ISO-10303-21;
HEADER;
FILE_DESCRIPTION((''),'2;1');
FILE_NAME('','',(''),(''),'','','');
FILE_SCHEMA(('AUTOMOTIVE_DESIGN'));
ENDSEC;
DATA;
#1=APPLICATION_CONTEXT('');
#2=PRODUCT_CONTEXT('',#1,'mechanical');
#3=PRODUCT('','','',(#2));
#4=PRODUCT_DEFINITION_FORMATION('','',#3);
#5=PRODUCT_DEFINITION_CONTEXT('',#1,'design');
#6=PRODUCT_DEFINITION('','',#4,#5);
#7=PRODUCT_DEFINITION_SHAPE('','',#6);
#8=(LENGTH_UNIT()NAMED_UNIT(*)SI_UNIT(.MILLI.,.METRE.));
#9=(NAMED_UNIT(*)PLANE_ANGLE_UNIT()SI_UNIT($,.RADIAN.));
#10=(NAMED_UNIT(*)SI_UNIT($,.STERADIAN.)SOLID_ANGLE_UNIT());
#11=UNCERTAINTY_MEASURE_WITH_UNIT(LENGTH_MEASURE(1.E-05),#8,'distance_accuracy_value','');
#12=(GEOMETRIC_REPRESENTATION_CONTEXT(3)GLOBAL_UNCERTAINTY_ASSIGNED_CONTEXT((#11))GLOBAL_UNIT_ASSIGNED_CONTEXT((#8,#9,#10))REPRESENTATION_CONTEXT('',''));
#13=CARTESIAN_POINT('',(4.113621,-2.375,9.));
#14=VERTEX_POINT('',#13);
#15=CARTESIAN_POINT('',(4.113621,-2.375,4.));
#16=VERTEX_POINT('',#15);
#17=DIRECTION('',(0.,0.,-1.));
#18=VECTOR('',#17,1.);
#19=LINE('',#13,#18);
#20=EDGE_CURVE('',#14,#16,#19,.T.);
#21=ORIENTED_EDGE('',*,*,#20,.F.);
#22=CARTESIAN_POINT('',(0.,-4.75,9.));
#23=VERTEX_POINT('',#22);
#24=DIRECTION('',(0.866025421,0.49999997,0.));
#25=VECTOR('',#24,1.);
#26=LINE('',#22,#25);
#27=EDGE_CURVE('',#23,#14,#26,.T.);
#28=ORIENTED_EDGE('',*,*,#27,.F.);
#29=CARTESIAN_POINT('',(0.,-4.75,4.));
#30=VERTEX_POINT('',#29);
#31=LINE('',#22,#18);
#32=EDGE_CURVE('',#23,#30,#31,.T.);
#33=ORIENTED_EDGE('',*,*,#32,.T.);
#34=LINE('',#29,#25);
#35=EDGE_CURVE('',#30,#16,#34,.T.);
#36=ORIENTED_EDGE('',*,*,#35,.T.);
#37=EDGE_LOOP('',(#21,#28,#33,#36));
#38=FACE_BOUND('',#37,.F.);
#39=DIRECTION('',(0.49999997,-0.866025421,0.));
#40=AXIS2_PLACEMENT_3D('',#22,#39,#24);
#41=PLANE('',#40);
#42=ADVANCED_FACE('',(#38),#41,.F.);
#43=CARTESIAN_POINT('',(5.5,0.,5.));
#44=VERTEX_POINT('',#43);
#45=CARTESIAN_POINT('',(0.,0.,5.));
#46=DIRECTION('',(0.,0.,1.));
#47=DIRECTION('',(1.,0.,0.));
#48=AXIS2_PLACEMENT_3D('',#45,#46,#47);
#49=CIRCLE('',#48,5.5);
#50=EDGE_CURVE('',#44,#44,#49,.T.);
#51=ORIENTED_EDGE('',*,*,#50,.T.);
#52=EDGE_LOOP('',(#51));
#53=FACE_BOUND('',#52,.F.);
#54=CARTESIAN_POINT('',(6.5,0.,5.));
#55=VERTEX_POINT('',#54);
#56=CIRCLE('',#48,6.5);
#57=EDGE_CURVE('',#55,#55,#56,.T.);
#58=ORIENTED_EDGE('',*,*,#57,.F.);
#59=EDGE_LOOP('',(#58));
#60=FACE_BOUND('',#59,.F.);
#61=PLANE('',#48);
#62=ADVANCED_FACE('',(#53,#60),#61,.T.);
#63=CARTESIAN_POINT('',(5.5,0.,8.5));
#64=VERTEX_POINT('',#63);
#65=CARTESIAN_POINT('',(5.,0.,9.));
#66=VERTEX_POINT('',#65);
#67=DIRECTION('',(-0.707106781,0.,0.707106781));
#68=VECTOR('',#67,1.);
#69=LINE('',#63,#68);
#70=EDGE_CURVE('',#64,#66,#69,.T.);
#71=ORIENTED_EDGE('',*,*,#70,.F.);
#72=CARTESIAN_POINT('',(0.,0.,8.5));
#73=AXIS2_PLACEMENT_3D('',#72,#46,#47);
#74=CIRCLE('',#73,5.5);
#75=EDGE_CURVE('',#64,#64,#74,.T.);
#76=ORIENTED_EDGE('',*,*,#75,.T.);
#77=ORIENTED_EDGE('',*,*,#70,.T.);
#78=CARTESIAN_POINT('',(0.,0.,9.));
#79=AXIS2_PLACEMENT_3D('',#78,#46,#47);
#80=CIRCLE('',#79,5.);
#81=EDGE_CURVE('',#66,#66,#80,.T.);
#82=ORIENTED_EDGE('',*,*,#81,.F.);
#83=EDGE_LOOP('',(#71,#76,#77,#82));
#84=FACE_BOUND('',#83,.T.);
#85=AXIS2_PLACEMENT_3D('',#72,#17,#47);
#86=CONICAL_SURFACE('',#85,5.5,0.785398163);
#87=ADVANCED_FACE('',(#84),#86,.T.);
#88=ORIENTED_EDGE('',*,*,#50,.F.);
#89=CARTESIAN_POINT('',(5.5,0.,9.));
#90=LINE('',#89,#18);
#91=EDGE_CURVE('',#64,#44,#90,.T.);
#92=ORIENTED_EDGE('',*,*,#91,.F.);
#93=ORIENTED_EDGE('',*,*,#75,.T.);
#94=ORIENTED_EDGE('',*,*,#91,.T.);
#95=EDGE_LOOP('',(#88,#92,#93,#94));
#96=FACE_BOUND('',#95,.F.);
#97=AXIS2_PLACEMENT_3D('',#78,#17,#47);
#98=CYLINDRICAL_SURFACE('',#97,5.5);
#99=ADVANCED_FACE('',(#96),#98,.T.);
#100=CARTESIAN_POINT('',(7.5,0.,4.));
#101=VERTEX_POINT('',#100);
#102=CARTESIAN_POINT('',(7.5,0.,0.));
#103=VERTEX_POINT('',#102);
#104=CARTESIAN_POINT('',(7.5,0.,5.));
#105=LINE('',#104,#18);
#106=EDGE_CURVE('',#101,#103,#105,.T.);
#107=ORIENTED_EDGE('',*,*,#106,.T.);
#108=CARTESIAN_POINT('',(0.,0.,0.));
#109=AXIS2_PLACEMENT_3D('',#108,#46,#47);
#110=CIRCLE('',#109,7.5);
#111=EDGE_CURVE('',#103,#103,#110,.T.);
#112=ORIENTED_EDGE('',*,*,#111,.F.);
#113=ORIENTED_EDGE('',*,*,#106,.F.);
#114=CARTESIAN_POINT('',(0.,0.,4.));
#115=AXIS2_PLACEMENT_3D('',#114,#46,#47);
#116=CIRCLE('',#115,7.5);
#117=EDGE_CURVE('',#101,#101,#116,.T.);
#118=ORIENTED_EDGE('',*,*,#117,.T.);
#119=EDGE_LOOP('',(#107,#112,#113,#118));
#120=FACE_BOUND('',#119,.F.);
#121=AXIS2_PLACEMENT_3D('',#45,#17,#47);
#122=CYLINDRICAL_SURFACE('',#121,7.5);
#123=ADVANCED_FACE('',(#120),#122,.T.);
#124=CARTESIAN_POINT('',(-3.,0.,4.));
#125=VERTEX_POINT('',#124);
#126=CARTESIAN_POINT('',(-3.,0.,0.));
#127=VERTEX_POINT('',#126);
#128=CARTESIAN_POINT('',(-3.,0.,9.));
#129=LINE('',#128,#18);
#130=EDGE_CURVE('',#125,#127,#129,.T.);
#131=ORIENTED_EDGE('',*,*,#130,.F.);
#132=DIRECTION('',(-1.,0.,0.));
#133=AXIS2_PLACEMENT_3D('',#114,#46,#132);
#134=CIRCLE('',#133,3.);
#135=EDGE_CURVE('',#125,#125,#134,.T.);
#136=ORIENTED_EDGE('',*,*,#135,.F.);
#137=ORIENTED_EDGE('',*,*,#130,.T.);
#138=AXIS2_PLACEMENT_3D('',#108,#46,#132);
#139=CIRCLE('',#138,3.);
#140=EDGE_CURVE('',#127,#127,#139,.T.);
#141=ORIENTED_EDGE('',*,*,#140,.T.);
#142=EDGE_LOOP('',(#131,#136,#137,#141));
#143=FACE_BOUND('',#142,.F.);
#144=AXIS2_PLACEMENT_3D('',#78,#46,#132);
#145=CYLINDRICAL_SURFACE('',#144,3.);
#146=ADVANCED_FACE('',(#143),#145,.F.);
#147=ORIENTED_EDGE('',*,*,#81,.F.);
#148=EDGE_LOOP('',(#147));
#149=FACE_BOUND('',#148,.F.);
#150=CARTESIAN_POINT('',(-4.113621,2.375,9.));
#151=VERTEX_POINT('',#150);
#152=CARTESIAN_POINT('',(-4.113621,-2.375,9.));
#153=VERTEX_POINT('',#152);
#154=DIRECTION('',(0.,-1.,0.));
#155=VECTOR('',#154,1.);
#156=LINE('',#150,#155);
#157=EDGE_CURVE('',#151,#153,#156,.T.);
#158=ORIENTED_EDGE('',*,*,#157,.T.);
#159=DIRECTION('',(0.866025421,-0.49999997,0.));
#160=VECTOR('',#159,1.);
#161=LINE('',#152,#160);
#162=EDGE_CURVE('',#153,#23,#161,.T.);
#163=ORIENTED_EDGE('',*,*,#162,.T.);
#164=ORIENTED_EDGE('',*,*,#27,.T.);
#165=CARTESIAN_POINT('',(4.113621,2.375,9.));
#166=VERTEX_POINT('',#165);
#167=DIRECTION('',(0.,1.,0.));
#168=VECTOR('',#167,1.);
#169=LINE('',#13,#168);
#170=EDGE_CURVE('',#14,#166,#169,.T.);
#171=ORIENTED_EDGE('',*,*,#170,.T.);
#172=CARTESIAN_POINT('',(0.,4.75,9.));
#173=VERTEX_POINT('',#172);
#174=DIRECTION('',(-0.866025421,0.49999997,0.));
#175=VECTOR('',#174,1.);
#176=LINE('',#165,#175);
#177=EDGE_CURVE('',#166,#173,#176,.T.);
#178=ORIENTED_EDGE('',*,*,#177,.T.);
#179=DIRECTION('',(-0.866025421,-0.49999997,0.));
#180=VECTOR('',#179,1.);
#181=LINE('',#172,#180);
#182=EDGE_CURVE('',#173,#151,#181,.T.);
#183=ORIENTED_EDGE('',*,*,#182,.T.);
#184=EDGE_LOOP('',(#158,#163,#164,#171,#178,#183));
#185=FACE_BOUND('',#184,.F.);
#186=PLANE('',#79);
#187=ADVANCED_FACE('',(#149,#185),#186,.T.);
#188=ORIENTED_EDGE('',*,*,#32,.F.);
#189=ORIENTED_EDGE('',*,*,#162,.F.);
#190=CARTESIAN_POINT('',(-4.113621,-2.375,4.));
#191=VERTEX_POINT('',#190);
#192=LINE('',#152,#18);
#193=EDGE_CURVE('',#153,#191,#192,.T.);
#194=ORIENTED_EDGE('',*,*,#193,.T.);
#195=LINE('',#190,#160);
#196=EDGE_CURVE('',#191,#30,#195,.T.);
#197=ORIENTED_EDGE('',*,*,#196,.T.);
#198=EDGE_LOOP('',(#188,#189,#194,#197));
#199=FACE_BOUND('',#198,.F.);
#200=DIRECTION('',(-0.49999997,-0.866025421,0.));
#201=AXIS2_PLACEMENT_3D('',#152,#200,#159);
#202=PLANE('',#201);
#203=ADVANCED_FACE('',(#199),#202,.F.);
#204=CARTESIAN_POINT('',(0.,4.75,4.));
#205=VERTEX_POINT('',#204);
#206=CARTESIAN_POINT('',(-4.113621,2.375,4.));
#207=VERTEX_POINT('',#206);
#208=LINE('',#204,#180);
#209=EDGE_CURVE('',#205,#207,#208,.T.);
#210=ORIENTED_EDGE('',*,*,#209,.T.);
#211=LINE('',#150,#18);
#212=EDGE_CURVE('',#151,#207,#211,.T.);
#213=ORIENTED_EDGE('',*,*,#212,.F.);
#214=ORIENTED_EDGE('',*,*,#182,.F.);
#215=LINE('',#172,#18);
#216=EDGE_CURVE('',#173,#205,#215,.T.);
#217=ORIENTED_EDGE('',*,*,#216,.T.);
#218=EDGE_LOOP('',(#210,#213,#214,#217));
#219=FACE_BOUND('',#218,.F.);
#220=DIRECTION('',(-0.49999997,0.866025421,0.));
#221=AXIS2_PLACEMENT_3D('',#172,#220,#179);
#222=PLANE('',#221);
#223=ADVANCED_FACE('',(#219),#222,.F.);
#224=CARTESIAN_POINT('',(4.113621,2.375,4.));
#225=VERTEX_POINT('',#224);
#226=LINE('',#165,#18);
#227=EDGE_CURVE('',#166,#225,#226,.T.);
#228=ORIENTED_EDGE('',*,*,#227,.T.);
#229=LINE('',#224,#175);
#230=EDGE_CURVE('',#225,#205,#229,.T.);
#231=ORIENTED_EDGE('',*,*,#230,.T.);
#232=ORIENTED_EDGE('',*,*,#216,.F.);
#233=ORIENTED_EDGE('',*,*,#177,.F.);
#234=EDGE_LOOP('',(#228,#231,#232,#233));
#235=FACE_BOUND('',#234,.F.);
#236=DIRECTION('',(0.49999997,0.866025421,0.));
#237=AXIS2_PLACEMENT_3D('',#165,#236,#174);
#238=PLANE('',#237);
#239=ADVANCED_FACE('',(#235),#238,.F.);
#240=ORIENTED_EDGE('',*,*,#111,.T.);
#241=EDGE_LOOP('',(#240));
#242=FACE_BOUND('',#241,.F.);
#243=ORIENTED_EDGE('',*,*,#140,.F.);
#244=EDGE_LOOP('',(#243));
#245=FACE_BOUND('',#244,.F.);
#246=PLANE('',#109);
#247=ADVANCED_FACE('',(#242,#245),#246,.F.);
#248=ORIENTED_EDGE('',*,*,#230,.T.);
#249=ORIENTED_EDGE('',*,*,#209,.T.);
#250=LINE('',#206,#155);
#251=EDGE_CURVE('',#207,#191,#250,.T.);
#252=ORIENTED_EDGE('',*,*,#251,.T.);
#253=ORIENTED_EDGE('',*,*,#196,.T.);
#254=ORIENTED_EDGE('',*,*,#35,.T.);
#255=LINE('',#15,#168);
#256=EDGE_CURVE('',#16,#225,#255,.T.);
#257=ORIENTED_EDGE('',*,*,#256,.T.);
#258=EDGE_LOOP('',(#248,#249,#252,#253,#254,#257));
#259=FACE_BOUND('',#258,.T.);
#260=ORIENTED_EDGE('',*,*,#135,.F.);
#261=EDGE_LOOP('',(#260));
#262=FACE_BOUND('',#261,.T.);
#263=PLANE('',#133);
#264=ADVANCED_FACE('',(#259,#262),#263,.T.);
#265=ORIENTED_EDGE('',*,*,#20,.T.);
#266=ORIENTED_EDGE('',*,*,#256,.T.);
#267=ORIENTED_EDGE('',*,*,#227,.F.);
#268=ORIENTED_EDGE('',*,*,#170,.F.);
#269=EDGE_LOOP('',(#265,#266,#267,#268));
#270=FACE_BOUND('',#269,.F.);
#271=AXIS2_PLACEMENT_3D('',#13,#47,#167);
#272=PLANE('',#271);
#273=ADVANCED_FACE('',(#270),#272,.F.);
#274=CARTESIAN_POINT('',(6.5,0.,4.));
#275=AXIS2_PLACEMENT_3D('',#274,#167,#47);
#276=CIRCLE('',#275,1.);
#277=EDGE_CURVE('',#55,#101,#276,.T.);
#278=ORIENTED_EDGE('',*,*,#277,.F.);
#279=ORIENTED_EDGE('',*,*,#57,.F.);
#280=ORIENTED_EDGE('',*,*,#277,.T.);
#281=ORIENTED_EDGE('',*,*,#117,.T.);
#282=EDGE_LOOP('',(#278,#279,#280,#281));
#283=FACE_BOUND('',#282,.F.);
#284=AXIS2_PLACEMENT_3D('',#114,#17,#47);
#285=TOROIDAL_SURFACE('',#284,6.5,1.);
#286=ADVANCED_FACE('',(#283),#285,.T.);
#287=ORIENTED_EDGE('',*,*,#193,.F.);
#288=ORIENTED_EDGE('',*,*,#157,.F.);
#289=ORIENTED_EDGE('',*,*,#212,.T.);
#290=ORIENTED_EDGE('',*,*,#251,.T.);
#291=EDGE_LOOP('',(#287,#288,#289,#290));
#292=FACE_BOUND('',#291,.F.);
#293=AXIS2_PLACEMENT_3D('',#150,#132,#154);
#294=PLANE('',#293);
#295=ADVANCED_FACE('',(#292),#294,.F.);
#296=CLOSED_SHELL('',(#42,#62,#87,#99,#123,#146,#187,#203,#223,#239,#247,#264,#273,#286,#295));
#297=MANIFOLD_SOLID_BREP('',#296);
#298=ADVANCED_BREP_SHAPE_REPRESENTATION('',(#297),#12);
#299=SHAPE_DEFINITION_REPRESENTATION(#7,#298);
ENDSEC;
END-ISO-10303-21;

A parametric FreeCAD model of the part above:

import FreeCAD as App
import Part
import Sketcher

V = App.Vector
Q = App.Units.Quantity


def edges_at(feature, points):
    """Names of the edges that pass closest to the given points."""
    edges = feature.Shape.Edges
    near = lambda p: min(range(len(edges)), key=lambda i: edges[i].distToShape(Part.Vertex(*p))[0])
    return sorted({f"Edge{near(p) + 1}" for p in points})


def add_polygon(sketch, points):
    """Adds a closed chain of lines whose ends are joined by coincident constraints."""
    first, n = sketch.GeometryCount, len(points)
    for a, b in zip(points, points[1:] + points[:1]):
        sketch.addGeometry(Part.LineSegment(App.Vector(*a, 0), App.Vector(*b, 0)), False)
    for i in range(n):
        sketch.addConstraint(Sketcher.Constraint("Coincident", first + i, 2, first + (i + 1) % n, 1))

doc = App.newDocument("Part")
body = doc.addObject("PartDesign::Body", "Body")

sketch1 = doc.addObject("Sketcher::SketchObject", "Sketch")
body.addObject(sketch1)
sketch1.AttachmentSupport = (doc.XZ_Plane, [""])
sketch1.MapMode = "FlatFace"
add_polygon(sketch1, [(0, 9), (0, 0), (7.5, 0), (7.5, 5), (5.5, 5), (5.5, 9)])
sketch1.addConstraint(Sketcher.Constraint("Vertical", 0))
sketch1.addConstraint(Sketcher.Constraint("Horizontal", 1))
sketch1.addConstraint(Sketcher.Constraint("Vertical", 2))
sketch1.addConstraint(Sketcher.Constraint("Horizontal", 3))
sketch1.addConstraint(Sketcher.Constraint("Vertical", 4))
sketch1.addConstraint(Sketcher.Constraint("Horizontal", 5))
sketch1.addConstraint(Sketcher.Constraint("Coincident", 0, 2, -1, 1))
sketch1.addConstraint(Sketcher.Constraint("DistanceX", 3, 2, 3, 1, 2.0))
sketch1.addConstraint(Sketcher.Constraint("DistanceY", 0, 2, 0, 1, 9.0))
sketch1.addConstraint(Sketcher.Constraint("DistanceY", 2, 1, 2, 2, 5.0))
sketch1.addConstraint(Sketcher.Constraint("DistanceX", 1, 1, 1, 2, 7.5))
revolution = doc.addObject("PartDesign::Revolution", "Revolution")
body.addObject(revolution)
revolution.Profile = sketch1
revolution.ReferenceAxis = (sketch1, ["V_Axis"])
revolution.Angle = 360

sketch2 = doc.addObject("Sketcher::SketchObject", "Sketch001")
body.addObject(sketch2)
sketch2.AttachmentSupport = (doc.XY_Plane, [""])
sketch2.MapMode = "FlatFace"
sketch2.AttachmentOffset = App.Placement(V(0, 0, 9), App.Rotation())
sketch2.addGeometry(Part.Circle(V(0, 0, 0), V(0, 0, 1), 3), False)
sketch2.addConstraint(Sketcher.Constraint("Coincident", 0, 3, -1, 1))
sketch2.addConstraint(Sketcher.Constraint("Diameter", 0, 6.0))
pocket1 = doc.addObject("PartDesign::Pocket", "Pocket")
body.addObject(pocket1)
pocket1.Profile = sketch2
pocket1.Type = "ThroughAll"

sketch3 = doc.addObject("Sketcher::SketchObject", "Sketch002")
body.addObject(sketch3)
sketch3.AttachmentSupport = (doc.XY_Plane, [""])
sketch3.MapMode = "FlatFace"
sketch3.AttachmentOffset = App.Placement(V(0, 0, 9), App.Rotation())
add_polygon(sketch3, [(-4.1, -2.4), (0, -4.8), (4.1, -2.4), (4.1, 2.4), (0, 4.8), (-4.1, 2.4)])
sketch3.addConstraint(Sketcher.Constraint("Vertical", 2))
sketch3.addConstraint(Sketcher.Constraint("Vertical", 5))
sketch3.addConstraint(Sketcher.Constraint("Symmetric", 0, 2, 3, 2, -1, 1))
sketch3.addConstraint(Sketcher.Constraint("Symmetric", 1, 2, 4, 2, -1, 1))
sketch3.addConstraint(Sketcher.Constraint("PointOnObject", 0, 2, -2))
sketch3.addConstraint(Sketcher.Constraint("Parallel", 0, 3))
sketch3.addConstraint(Sketcher.Constraint("Horizontal", 2, 2, 4, 2))
sketch3.addConstraint(Sketcher.Constraint("Angle", 0, Q("-29.999998 deg")))
sketch3.addConstraint(Sketcher.Constraint("DistanceY", 2, 1, 2, 2, 4.75))
sketch3.addConstraint(Sketcher.Constraint("DistanceY", 0, 2, 3, 2, 9.5))
pocket2 = doc.addObject("PartDesign::Pocket", "Pocket001")
body.addObject(pocket2)
pocket2.Profile = sketch3
pocket2.Length = 5
doc.recompute()

fillet = doc.addObject("PartDesign::Fillet", "Fillet")
body.addObject(fillet)
fillet.Base = (pocket2, edges_at(pocket2, [(-7.5, 0, 5)]))
fillet.Radius = 1
doc.recompute()

chamfer = doc.addObject("PartDesign::Chamfer", "Chamfer")
body.addObject(chamfer)
chamfer.Base = (fillet, edges_at(fillet, [(-5.5, 0, 9)]))
chamfer.Size = 0.5

doc.recompute()
